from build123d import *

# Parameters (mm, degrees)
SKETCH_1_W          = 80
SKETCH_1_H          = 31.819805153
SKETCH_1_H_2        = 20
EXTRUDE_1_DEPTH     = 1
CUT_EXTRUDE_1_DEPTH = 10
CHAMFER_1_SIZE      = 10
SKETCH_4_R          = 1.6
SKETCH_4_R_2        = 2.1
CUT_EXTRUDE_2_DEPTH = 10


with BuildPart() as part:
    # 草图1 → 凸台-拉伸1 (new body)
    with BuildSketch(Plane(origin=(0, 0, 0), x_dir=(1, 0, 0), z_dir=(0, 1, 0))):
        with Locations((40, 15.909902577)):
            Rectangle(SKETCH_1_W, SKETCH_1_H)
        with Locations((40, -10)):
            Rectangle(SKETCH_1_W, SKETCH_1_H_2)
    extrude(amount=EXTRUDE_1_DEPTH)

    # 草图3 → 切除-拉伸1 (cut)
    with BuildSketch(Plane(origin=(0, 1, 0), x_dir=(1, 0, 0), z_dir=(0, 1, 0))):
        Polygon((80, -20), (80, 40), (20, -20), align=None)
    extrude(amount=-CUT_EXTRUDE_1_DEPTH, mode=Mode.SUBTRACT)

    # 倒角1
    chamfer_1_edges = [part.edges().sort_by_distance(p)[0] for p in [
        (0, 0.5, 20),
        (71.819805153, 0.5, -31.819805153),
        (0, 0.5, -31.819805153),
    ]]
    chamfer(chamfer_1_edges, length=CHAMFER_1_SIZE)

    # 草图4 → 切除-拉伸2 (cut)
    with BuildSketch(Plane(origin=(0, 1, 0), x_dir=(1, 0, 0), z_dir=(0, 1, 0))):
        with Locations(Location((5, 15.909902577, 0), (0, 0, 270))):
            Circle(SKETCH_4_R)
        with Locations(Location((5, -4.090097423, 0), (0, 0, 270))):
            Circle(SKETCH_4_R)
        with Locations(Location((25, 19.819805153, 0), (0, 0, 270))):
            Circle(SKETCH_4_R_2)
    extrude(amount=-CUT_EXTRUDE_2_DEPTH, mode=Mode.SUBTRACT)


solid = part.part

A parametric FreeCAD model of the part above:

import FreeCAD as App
import Part
import Sketcher

V = App.Vector
Q = App.Units.Quantity


def edges_at(feature, points):
    """Names of the edges that pass closest to the given points."""
    edges = feature.Shape.Edges
    near = lambda p: min(range(len(edges)), key=lambda i: edges[i].distToShape(Part.Vertex(*p))[0])
    return sorted({f"Edge{near(p) + 1}" for p in points})


def add_polygon(sketch, points):
    """Adds a closed chain of lines whose ends are joined by coincident constraints."""
    first, n = sketch.GeometryCount, len(points)
    for a, b in zip(points, points[1:] + points[:1]):
        sketch.addGeometry(Part.LineSegment(App.Vector(*a, 0), App.Vector(*b, 0)), False)
    for i in range(n):
        sketch.addConstraint(Sketcher.Constraint("Coincident", first + i, 2, first + (i + 1) % n, 1))

doc = App.newDocument("Part")
body = doc.addObject("PartDesign::Body", "Body")

# Sketch on XZ plane
sketch1 = doc.addObject("Sketcher::SketchObject", "Sketch")
body.addObject(sketch1)
sketch1.AttachmentSupport = (doc.XZ_Plane, [""])
sketch1.MapMode = "FlatFace"
add_polygon(sketch1, [(0, -32), (0, 20), (80, 20), (80, -32)])  # lines 0-3
sketch1.addConstraint([
    Sketcher.Constraint("Vertical", 0),
    Sketcher.Constraint("Horizontal", 1),
    Sketcher.Constraint("Vertical", 2),
    Sketcher.Constraint("Horizontal", 3),
    Sketcher.Constraint("PointOnObject", 0, 2, -2),
    Sketcher.Constraint("DistanceX", 1, 1, 1, 2, Q("80 mm")),
    Sketcher.Constraint("DistanceY", -1, 1, 0, 2, Q("20 mm")),
    Sketcher.Constraint("DistanceY", 0, 1, 0, 2, Q("51.819805 mm")),
])
pad1 = doc.addObject("PartDesign::Pad", "Pad")
body.addObject(pad1)
pad1.Profile = sketch1
pad1.Length = 1
pad1.Reversed = True

# Sketch on XZ plane
sketch2 = doc.addObject("Sketcher::SketchObject", "Sketch001")
body.addObject(sketch2)
sketch2.AttachmentSupport = (doc.XZ_Plane, [""])
sketch2.MapMode = "FlatFace"
sketch2.AttachmentOffset = App.Placement(V(0, 0, -1), App.Rotation())
add_polygon(sketch2, [(80, 20), (80, -40), (20, 20)])  # lines 0-2
sketch2.addConstraint([
    Sketcher.Constraint("Vertical", 0),
    Sketcher.Constraint("Horizontal", 2),
    Sketcher.Constraint("Equal", 2, 0),
    Sketcher.Constraint("DistanceX", 2, 1, 2, 2, Q("60 mm")),
    Sketcher.Constraint("DistanceX", -1, 1, 0, 2, Q("80 mm")),
    Sketcher.Constraint("DistanceY", 0, 2, -1, 1, Q("40 mm")),
])
pocket1 = doc.addObject("PartDesign::Pocket", "Pocket")
body.addObject(pocket1)
pocket1.Profile = sketch2
pocket1.Length = 10
pocket1.Reversed = True
doc.recompute()

chamfer = doc.addObject("PartDesign::Chamfer", "Chamfer")
body.addObject(chamfer)
chamfer.Base = (pocket1, edges_at(pocket1, [(0, 0.5, 20), (71.82, 0.5, -31.82), (0, 0.5, -31.82)]))
chamfer.Size = 10

# Sketch on XZ plane
sketch3 = doc.addObject("Sketcher::SketchObject", "Sketch002")
body.addObject(sketch3)
sketch3.AttachmentSupport = (doc.XZ_Plane, [""])
sketch3.MapMode = "FlatFace"
sketch3.AttachmentOffset = App.Placement(V(0, 0, -1), App.Rotation())
sketch3.addGeometry([
    Part.Circle(V(5, -15.9, 0), V(0, 0, 1), 1.6),
    Part.Circle(V(5, 4.1, 0), V(0, 0, 1), 1.6),
    Part.Circle(V(25, -19.8, 0), V(0, 0, 1), 2.1),
], False)
sketch3.addConstraint([
    Sketcher.Constraint("Equal", 0, 1),
    Sketcher.Constraint("Vertical", 0, 3, 1, 3),
    Sketcher.Constraint("Diameter", 0, Q("3.2 mm")),
    Sketcher.Constraint("Diameter", 2, Q("4.2 mm")),
    Sketcher.Constraint("DistanceX", -1, 1, 0, 3, Q("5 mm")),
    Sketcher.Constraint("DistanceX", -1, 1, 2, 3, Q("25 mm")),
    Sketcher.Constraint("DistanceY", 0, 3, 1, 3, Q("20 mm")),
    Sketcher.Constraint("DistanceY", 0, 3, -1, 1, Q("15.909903 mm")),
    Sketcher.Constraint("DistanceY", 2, 3, -1, 1, Q("19.819805 mm")),
])
pocket2 = doc.addObject("PartDesign::Pocket", "Pocket001")
body.addObject(pocket2)
pocket2.Profile = sketch3
pocket2.Length = 10
pocket2.Reversed = True

doc.recompute()
